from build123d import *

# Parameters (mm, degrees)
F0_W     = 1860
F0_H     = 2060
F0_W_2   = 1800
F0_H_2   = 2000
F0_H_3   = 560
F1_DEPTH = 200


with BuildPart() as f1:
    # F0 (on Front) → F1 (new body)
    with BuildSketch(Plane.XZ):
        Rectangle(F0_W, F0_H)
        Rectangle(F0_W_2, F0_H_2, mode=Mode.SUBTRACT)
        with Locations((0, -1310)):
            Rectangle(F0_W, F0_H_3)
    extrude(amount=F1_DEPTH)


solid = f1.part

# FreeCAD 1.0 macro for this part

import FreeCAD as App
import Part
import Sketcher


def add_polygon(sketch, points):
    """Adds a closed chain of lines whose ends are joined by coincident constraints."""
    first, n = sketch.GeometryCount, len(points)
    for a, b in zip(points, points[1:] + points[:1]):
        sketch.addGeometry(Part.LineSegment(App.Vector(*a, 0), App.Vector(*b, 0)), False)
    for i in range(n):
        sketch.addConstraint(Sketcher.Constraint("Coincident", first + i, 2, first + (i + 1) % n, 1))

doc = App.newDocument("Part")
body = doc.addObject("PartDesign::Body", "Body")

# Sketch on XZ plane
sketch1 = body.newObject("Sketcher::SketchObject", "Sketch")
sketch1.AttachmentSupport = (doc.getObject("XZ_Plane"), [""])
sketch1.MapMode = "FlatFace"
add_polygon(sketch1, [(-930, 1030), (-930, -1590), (930, -1590), (930, 1030)])  # lines 0-3
add_polygon(sketch1, [(900, -1000), (-900, -1000), (-900, 1000), (900, 1000)])  # lines 4-7
sketch1.addConstraint(Sketcher.Constraint("Vertical", 0))
sketch1.addConstraint(Sketcher.Constraint("Horizontal", 1))
sketch1.addConstraint(Sketcher.Constraint("Vertical", 2))
sketch1.addConstraint(Sketcher.Constraint("Horizontal", 3))
sketch1.addConstraint(Sketcher.Constraint("Horizontal", 4))
sketch1.addConstraint(Sketcher.Constraint("Vertical", 5))
sketch1.addConstraint(Sketcher.Constraint("Horizontal", 6))
sketch1.addConstraint(Sketcher.Constraint("Vertical", 7))
sketch1.addConstraint(Sketcher.Constraint("Symmetric", 4, 2, 6, 2, -1, 1))
sketch1.addConstraint(Sketcher.Constraint("DistanceX", 1, 1, 1, 2, 1860.0))
sketch1.addConstraint(Sketcher.Constraint("DistanceX", 4, 2, 4, 1, 1800.0))
sketch1.addConstraint(Sketcher.Constraint("DistanceY", 0, 2, 0, 1, 2620.0))
sketch1.addConstraint(Sketcher.Constraint("DistanceY", 5, 1, 5, 2, 2000.0))
sketch1.addConstraint(Sketcher.Constraint("DistanceX", 0, 2, -1, 1, 930.0))
sketch1.addConstraint(Sketcher.Constraint("DistanceY", 0, 2, -1, 1, 1590.0))
pad1 = body.newObject("PartDesign::Pad", "Pad")
pad1.Profile = sketch1
pad1.Length = 200

doc.recompute()
